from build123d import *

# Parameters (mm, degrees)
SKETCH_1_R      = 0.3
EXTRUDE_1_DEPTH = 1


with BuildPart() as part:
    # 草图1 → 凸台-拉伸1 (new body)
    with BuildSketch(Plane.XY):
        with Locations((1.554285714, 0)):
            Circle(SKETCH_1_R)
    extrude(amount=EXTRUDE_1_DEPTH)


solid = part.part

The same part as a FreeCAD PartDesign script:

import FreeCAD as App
import Part
import Sketcher

V = App.Vector
Q = App.Units.Quantity

doc = App.newDocument("Part")
body = doc.addObject("PartDesign::Body", "Body")

# Sketch on XY plane
sketch1 = body.newObject("Sketcher::SketchObject", "Sketch")
sketch1.AttachmentSupport = (doc.getObject("XY_Plane"), [""])
sketch1.MapMode = "FlatFace"
sketch1.addGeometry(Part.Circle(V(1.554286, 0, 0), V(0, 0, 1), 0.3), False)
sketch1.addConstraint(Sketcher.Constraint("PointOnObject", 0, 3, -1))
sketch1.addConstraint(Sketcher.Constraint("Diameter", 0, Q("0.6 mm")))
sketch1.addConstraint(Sketcher.Constraint("DistanceX", -1, 1, 0, 3, Q("1.554286 mm")))
pad1 = body.newObject("PartDesign::Pad", "Pad")
pad1.Profile = sketch1
pad1.Length = 1

doc.recompute()
